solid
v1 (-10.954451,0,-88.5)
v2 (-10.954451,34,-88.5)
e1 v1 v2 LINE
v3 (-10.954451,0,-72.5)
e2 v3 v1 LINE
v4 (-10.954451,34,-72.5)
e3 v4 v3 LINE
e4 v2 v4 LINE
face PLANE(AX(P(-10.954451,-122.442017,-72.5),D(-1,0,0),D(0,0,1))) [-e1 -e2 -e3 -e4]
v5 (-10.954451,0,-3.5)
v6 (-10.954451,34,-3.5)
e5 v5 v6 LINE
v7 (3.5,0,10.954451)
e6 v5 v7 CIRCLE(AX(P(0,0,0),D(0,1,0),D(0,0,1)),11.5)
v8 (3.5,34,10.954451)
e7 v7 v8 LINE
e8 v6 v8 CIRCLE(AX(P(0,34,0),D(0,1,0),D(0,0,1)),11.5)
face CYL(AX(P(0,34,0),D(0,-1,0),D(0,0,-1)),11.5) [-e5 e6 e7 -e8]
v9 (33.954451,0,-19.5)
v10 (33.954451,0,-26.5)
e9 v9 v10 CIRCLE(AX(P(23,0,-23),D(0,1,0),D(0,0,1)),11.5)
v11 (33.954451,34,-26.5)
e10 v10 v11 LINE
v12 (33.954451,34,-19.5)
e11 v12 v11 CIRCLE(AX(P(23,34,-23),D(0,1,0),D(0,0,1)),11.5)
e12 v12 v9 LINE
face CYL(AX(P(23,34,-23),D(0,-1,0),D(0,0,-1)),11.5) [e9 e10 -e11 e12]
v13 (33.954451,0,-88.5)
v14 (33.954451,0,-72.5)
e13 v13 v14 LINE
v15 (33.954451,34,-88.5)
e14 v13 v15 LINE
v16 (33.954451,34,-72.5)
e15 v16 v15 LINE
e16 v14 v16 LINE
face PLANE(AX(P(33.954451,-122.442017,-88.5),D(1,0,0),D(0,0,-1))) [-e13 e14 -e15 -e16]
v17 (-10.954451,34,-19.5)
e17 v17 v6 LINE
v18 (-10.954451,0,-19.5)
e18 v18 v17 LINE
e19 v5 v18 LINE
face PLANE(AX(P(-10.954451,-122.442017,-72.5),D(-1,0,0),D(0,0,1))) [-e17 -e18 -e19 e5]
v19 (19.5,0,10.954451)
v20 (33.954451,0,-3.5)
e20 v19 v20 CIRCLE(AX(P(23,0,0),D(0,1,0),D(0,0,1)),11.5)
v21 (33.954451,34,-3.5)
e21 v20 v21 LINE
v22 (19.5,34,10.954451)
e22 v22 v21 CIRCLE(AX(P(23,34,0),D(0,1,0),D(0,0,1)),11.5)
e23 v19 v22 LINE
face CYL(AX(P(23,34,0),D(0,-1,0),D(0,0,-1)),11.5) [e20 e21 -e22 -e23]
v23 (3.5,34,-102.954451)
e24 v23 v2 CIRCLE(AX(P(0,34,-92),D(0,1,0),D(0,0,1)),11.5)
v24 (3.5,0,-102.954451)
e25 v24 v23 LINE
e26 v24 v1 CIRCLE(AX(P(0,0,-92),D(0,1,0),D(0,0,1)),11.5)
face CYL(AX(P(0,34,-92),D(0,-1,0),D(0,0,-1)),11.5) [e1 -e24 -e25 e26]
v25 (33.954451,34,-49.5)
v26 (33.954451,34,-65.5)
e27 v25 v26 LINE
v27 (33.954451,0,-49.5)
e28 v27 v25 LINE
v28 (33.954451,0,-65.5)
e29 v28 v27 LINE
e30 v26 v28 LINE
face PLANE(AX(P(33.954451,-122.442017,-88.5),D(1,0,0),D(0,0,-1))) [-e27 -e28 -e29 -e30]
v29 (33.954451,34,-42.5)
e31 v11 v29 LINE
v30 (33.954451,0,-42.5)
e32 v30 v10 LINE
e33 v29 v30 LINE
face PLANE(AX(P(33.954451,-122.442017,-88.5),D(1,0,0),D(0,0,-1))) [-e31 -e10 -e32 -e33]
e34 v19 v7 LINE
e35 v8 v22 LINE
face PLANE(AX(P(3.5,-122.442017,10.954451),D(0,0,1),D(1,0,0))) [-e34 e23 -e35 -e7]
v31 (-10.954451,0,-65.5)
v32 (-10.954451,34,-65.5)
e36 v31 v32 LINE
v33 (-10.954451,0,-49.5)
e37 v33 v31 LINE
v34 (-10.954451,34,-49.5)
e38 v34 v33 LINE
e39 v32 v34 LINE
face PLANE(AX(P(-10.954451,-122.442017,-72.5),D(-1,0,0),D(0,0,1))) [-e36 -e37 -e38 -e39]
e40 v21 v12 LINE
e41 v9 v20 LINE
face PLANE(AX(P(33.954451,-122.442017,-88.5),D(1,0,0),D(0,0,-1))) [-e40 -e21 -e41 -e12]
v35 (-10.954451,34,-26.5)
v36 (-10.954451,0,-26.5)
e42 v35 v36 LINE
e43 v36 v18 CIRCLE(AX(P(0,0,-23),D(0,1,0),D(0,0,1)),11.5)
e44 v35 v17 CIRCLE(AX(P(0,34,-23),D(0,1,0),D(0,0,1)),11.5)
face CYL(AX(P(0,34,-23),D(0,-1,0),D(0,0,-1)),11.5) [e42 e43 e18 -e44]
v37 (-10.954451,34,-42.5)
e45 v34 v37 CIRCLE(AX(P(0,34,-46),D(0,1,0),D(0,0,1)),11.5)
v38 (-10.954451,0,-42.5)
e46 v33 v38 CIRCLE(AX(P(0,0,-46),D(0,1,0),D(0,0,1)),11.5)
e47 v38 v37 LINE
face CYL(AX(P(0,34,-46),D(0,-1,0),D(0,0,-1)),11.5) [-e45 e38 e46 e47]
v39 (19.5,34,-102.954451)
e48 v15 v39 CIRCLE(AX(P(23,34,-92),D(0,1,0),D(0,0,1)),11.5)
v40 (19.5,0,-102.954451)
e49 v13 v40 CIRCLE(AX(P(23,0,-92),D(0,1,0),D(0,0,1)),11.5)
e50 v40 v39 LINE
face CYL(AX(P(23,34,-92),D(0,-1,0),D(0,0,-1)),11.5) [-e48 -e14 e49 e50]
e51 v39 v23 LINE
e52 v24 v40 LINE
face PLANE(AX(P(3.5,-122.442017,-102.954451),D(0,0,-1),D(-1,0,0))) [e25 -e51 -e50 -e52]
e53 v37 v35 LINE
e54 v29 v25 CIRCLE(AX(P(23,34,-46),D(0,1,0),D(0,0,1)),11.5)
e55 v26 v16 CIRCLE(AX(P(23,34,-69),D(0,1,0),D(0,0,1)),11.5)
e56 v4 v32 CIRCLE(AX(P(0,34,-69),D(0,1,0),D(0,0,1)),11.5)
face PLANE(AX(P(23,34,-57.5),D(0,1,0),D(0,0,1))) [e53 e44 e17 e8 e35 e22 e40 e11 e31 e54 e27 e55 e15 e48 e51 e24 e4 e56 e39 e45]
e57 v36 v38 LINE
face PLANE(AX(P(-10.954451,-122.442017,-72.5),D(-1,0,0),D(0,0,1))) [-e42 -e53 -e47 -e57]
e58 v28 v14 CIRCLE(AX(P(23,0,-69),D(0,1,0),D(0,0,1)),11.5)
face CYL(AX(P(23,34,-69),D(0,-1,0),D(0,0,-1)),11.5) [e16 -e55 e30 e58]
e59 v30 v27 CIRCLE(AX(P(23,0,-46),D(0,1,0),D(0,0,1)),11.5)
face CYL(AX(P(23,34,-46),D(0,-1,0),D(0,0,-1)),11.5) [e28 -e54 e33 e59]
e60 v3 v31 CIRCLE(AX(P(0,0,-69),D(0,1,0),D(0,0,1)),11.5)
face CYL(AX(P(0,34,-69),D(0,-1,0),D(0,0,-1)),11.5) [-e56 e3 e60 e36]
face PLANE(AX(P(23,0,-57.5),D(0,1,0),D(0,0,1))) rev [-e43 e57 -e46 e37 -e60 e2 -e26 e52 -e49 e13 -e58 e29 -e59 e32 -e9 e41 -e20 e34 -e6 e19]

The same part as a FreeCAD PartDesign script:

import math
import FreeCAD as App
import Part
import Sketcher

V = App.Vector
Q = App.Units.Quantity


def add_polygon(sketch, points):
    """Adds a closed chain of lines whose ends are joined by coincident constraints."""
    first, n = sketch.GeometryCount, len(points)
    for a, b in zip(points, points[1:] + points[:1]):
        sketch.addGeometry(Part.LineSegment(App.Vector(*a, 0), App.Vector(*b, 0)), False)
    for i in range(n):
        sketch.addConstraint(Sketcher.Constraint("Coincident", first + i, 2, first + (i + 1) % n, 1))

doc = App.newDocument("Part")
params = doc.addObject("Spreadsheet::Sheet", "Params")
for row, (alias, value) in enumerate([
    ("sketch1_radius", "11.5 mm"),
    ("pad1_length", "34 mm"),
    ("sketch2_width", "16 mm"),
    ("sketch2_height", "85 mm"),
    ("sketch2_height2", "92 mm"),
    ("pad2_length", "34 mm"),
], start=1):
    params.set(f"A{row}", alias)
    params.set(f"B{row}", "=" + value)
    params.setAlias(f"B{row}", alias)

body = doc.addObject("PartDesign::Body", "Body")

# Sketch on XZ plane
sketch1 = body.newObject("Sketcher::SketchObject", "Sketch")
sketch1.AttachmentSupport = (doc.getObject("XZ_Plane"), [""])
sketch1.MapMode = "FlatFace"
sketch1.addGeometry(Part.ArcOfCircle(Part.Circle(V(0, 0, 0), V(0, 0, 1), 12), math.radians(0), math.radians(270)), False)
sketch1.addGeometry(Part.ArcOfCircle(Part.Circle(V(23, 0, 0), V(0, 0, 1), 12), math.radians(-90), math.radians(180)), False)
sketch1.addGeometry(Part.ArcOfCircle(Part.Circle(V(23, -23, 0), V(0, 0, 1), 12), math.radians(-90), math.radians(90)), False)
sketch1.addGeometry(Part.ArcOfCircle(Part.Circle(V(23, -46, 0), V(0, 0, 1), 12), math.radians(-90), math.radians(90)), False)
sketch1.addGeometry(Part.ArcOfCircle(Part.Circle(V(23, -69, 0), V(0, 0, 1), 12), math.radians(-90), math.radians(90)), False)
sketch1.addGeometry(Part.ArcOfCircle(Part.Circle(V(23, -92, 0), V(0, 0, 1), 12), math.radians(180), math.radians(450)), False)
sketch1.addGeometry(Part.ArcOfCircle(Part.Circle(V(0, -92, 0), V(0, 0, 1), 12), math.radians(90), math.radians(360)), False)
sketch1.addGeometry(Part.ArcOfCircle(Part.Circle(V(0, -69, 0), V(0, 0, 1), 12), math.radians(90), math.radians(270)), False)
sketch1.addGeometry(Part.ArcOfCircle(Part.Circle(V(0, -46, 0), V(0, 0, 1), 12), math.radians(90), math.radians(270)), False)
sketch1.addGeometry(Part.ArcOfCircle(Part.Circle(V(0, -23, 0), V(0, 0, 1), 12), math.radians(90), math.radians(270)), False)
sketch1.addConstraint(Sketcher.Constraint("Tangent", 0, 1, 1, 2))
sketch1.addConstraint(Sketcher.Constraint("Tangent", 1, 1, 2, 2))
sketch1.addConstraint(Sketcher.Constraint("Tangent", 2, 1, 3, 2))
sketch1.addConstraint(Sketcher.Constraint("Tangent", 3, 1, 4, 2))
sketch1.addConstraint(Sketcher.Constraint("Tangent", 4, 1, 5, 2))
sketch1.addConstraint(Sketcher.Constraint("Tangent", 5, 1, 6, 2))
sketch1.addConstraint(Sketcher.Constraint("Tangent", 6, 1, 7, 2))
sketch1.addConstraint(Sketcher.Constraint("Tangent", 7, 1, 8, 2))
sketch1.addConstraint(Sketcher.Constraint("Tangent", 8, 1, 9, 2))
sketch1.addConstraint(Sketcher.Constraint("Tangent", 9, 1, 0, 2))
sketch1.addConstraint(Sketcher.Constraint("Coincident", 0, 3, -1, 1))
sketch1.addConstraint(Sketcher.Constraint("Equal", 0, 1))
sketch1.addConstraint(Sketcher.Constraint("Equal", 1, 2))
sketch1.addConstraint(Sketcher.Constraint("Equal", 2, 3))
sketch1.addConstraint(Sketcher.Constraint("Equal", 3, 4))
sketch1.addConstraint(Sketcher.Constraint("Equal", 4, 5))
sketch1.addConstraint(Sketcher.Constraint("Equal", 5, 6))
sketch1.addConstraint(Sketcher.Constraint("Equal", 6, 7))
sketch1.addConstraint(Sketcher.Constraint("Equal", 7, 8))
sketch1.addConstraint(Sketcher.Constraint("Equal", 8, 9))
sketch1.addConstraint(Sketcher.Constraint("PointOnObject", 1, 3, -1))
sketch1.addConstraint(Sketcher.Constraint("PointOnObject", 6, 3, -2))
sketch1.addConstraint(Sketcher.Constraint("PointOnObject", 7, 3, -2))
sketch1.addConstraint(Sketcher.Constraint("PointOnObject", 8, 3, -2))
sketch1.addConstraint(Sketcher.Constraint("PointOnObject", 9, 3, -2))
sketch1.addConstraint(Sketcher.Constraint("Vertical", 1, 3, 2, 3))
sketch1.addConstraint(Sketcher.Constraint("Vertical", 2, 3, 3, 3))
sketch1.addConstraint(Sketcher.Constraint("Vertical", 3, 3, 4, 3))
sketch1.addConstraint(Sketcher.Constraint("Radius", 0, Q("11.5 mm")))
sketch1.setExpression("Constraints[28]", "Params.sketch1_radius")
pad1 = body.newObject("PartDesign::Pad", "Pad")
pad1.Profile = sketch1
pad1.setExpression("Length", "Params.pad1_length")
pad1.Reversed = True

# Sketch on XZ plane
sketch2 = body.newObject("Sketcher::SketchObject", "Sketch001")
sketch2.AttachmentSupport = (doc.getObject("XZ_Plane"), [""])
sketch2.MapMode = "FlatFace"
sketch2.AttachmentOffset = App.Placement(V(0, 0, -34), App.Rotation())
add_polygon(sketch2, [(-11, -88), (-11, -4), (4, 11), (20, 11), (34, 4), (34, -88), (20, -103), (4, -103)])  # lines 0-7
sketch2.addConstraint(Sketcher.Constraint("Vertical", 0))
sketch2.addConstraint(Sketcher.Constraint("Horizontal", 2))
sketch2.addConstraint(Sketcher.Constraint("Vertical", 4))
sketch2.addConstraint(Sketcher.Constraint("Horizontal", 6))
sketch2.addConstraint(Sketcher.Constraint("Parallel", 1, 5))
sketch2.addConstraint(Sketcher.Constraint("Perpendicular", 5, 7))
sketch2.addConstraint(Sketcher.Constraint("Horizontal", 4, 2, 7, 2))
sketch2.addConstraint(Sketcher.Constraint("Vertical", 2, 2, 5, 2))
sketch2.addConstraint(Sketcher.Constraint("Vertical", 1, 2, 6, 2))
sketch2.addConstraint(Sketcher.Constraint("Equal", 1, 5))
sketch2.addConstraint(Sketcher.Constraint("DistanceX", 2, 1, 2, 2, Q("16 mm")))
sketch2.addConstraint(Sketcher.Constraint("DistanceY", 0, 1, 0, 2, Q("85 mm")))
sketch2.addConstraint(Sketcher.Constraint("DistanceY", 4, 2, 4, 1, Q("92 mm")))
sketch2.addConstraint(Sketcher.Constraint("DistanceY", 0, 2, -1, 1, Q("3.5 mm")))
sketch2.addConstraint(Sketcher.Constraint("DistanceX", -1, 1, 1, 2, Q("3.5 mm")))
sketch2.addConstraint(Sketcher.Constraint("Distance", 1, Q("20.441681 mm")))
sketch2.setExpression("Constraints[18]", "Params.sketch2_width")
sketch2.setExpression("Constraints[19]", "Params.sketch2_height")
sketch2.setExpression("Constraints[20]", "Params.sketch2_height2")
pad2 = body.newObject("PartDesign::Pad", "Pad001")
pad2.Profile = sketch2
pad2.setExpression("Length", "Params.pad2_length")

doc.recompute()
